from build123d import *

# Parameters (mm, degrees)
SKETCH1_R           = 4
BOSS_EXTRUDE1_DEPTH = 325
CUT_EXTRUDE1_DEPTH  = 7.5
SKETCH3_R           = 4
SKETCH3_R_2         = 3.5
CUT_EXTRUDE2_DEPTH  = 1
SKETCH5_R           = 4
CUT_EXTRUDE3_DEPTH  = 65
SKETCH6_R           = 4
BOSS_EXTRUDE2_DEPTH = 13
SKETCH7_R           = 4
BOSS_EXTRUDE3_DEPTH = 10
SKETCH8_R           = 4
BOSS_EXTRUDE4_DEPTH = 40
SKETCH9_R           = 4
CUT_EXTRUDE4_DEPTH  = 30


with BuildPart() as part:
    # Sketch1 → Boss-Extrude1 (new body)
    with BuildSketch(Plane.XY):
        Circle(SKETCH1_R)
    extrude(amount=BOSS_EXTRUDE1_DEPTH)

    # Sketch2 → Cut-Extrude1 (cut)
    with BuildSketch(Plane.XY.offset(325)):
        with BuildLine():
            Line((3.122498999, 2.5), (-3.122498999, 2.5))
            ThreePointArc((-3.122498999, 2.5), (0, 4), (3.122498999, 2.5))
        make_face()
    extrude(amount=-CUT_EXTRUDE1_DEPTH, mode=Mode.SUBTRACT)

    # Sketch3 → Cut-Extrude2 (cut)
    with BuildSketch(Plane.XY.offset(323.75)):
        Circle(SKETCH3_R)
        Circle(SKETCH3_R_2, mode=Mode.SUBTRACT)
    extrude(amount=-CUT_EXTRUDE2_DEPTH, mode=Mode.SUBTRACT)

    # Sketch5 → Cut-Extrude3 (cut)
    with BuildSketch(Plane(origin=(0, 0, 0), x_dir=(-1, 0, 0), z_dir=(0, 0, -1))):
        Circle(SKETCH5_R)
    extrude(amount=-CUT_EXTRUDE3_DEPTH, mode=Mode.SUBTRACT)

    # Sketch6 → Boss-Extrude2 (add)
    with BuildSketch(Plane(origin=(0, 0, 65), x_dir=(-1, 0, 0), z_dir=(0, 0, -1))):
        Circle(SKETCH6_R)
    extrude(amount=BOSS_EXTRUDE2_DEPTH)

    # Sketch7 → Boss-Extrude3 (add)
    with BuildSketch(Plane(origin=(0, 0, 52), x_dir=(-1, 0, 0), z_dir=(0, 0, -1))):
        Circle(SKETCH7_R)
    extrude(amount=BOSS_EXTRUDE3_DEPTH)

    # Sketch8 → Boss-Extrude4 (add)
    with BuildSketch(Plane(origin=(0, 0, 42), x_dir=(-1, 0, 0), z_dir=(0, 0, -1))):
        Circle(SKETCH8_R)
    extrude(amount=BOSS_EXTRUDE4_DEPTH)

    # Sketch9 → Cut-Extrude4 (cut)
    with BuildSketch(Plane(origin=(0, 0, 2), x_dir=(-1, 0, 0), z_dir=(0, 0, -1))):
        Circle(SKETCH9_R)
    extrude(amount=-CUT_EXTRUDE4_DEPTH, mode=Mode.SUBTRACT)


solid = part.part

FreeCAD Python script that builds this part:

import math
import FreeCAD as App
import Part
import Sketcher
from FreeCAD import Vector

doc = App.newDocument("Part")
body = doc.addObject("PartDesign::Body", "Body")

# Sketch on XY plane
sketch1 = body.newObject("Sketcher::SketchObject", "Sketch")
sketch1.AttachmentSupport = (doc.getObject("XY_Plane"), [""])
sketch1.MapMode = "FlatFace"
sketch1.addGeometry(Part.Circle(Vector(0, 0, 0), Vector(0, 0, 1), 4), False)
sketch1.addConstraint(Sketcher.Constraint("Coincident", 0, 3, -1, 1))
sketch1.addConstraint(Sketcher.Constraint("Diameter", 0, 8.0))
pad1 = body.newObject("PartDesign::Pad", "Pad")
pad1.Profile = sketch1
pad1.Length = 325

# Sketch on XY plane
sketch2 = body.newObject("Sketcher::SketchObject", "Sketch001")
sketch2.AttachmentSupport = (doc.getObject("XY_Plane"), [""])
sketch2.MapMode = "FlatFace"
sketch2.AttachmentOffset = App.Placement(Vector(0, 0, 325), App.Rotation())
sketch2.addGeometry(Part.LineSegment(Vector(-3.1, 2.5, 0), Vector(3.1, 2.5, 0)), False)
sketch2.addGeometry(Part.ArcOfCircle(Part.Circle(Vector(0, 0, 0), Vector(0, 0, 1), 4), math.radians(39), math.radians(141)), False)
sketch2.addConstraint(Sketcher.Constraint("Coincident", 0, 1, 1, 2))
sketch2.addConstraint(Sketcher.Constraint("Coincident", 1, 1, 0, 2))
sketch2.addConstraint(Sketcher.Constraint("Horizontal", 0))
sketch2.addConstraint(Sketcher.Constraint("Coincident", 1, 3, -1, 1))
sketch2.addConstraint(Sketcher.Constraint("Radius", 1, 4.0))
sketch2.addConstraint(Sketcher.Constraint("DistanceY", -1, 1, 0, 1, 2.5))
pocket1 = body.newObject("PartDesign::Pocket", "Pocket")
pocket1.Profile = sketch2
pocket1.Length = 7.5

# Sketch on XY plane
sketch3 = body.newObject("Sketcher::SketchObject", "Sketch002")
sketch3.AttachmentSupport = (doc.getObject("XY_Plane"), [""])
sketch3.MapMode = "FlatFace"
sketch3.AttachmentOffset = App.Placement(Vector(0, 0, 323.75), App.Rotation())
sketch3.addGeometry(Part.Circle(Vector(0, 0, 0), Vector(0, 0, 1), 4), False)
sketch3.addGeometry(Part.Circle(Vector(0, 0, 0), Vector(0, 0, 1), 3.5), False)
sketch3.addConstraint(Sketcher.Constraint("Coincident", 0, 3, -1, 1))
sketch3.addConstraint(Sketcher.Constraint("Coincident", 1, 3, -1, 1))
sketch3.addConstraint(Sketcher.Constraint("Diameter", 0, 8.0))
sketch3.addConstraint(Sketcher.Constraint("Diameter", 1, 7.0))
pocket2 = body.newObject("PartDesign::Pocket", "Pocket001")
pocket2.Profile = sketch3
pocket2.Length = 1

# Sketch on XY plane
sketch4 = body.newObject("Sketcher::SketchObject", "Sketch003")
sketch4.AttachmentSupport = (doc.getObject("XY_Plane"), [""])
sketch4.MapMode = "FlatFace"
sketch4.addGeometry(Part.Circle(Vector(0, 0, 0), Vector(0, 0, 1), 4), False)
sketch4.addConstraint(Sketcher.Constraint("Coincident", 0, 3, -1, 1))
sketch4.addConstraint(Sketcher.Constraint("Diameter", 0, 8.0))
pocket3 = body.newObject("PartDesign::Pocket", "Pocket002")
pocket3.Profile = sketch4
pocket3.Length = 65
pocket3.Reversed = True

# Sketch on XY plane
sketch5 = body.newObject("Sketcher::SketchObject", "Sketch004")
sketch5.AttachmentSupport = (doc.getObject("XY_Plane"), [""])
sketch5.MapMode = "FlatFace"
sketch5.AttachmentOffset = App.Placement(Vector(0, 0, 65), App.Rotation())
sketch5.addGeometry(Part.Circle(Vector(0, 0, 0), Vector(0, 0, 1), 4), False)
sketch5.addConstraint(Sketcher.Constraint("Coincident", 0, 3, -1, 1))
sketch5.addConstraint(Sketcher.Constraint("Diameter", 0, 8.0))
pad2 = body.newObject("PartDesign::Pad", "Pad001")
pad2.Profile = sketch5
pad2.Length = 13
pad2.Reversed = True

# Sketch on XY plane
sketch6 = body.newObject("Sketcher::SketchObject", "Sketch005")
sketch6.AttachmentSupport = (doc.getObject("XY_Plane"), [""])
sketch6.MapMode = "FlatFace"
sketch6.AttachmentOffset = App.Placement(Vector(0, 0, 52), App.Rotation())
sketch6.addGeometry(Part.Circle(Vector(0, 0, 0), Vector(0, 0, 1), 4), False)
sketch6.addConstraint(Sketcher.Constraint("Coincident", 0, 3, -1, 1))
sketch6.addConstraint(Sketcher.Constraint("Diameter", 0, 8.0))
pad3 = body.newObject("PartDesign::Pad", "Pad002")
pad3.Profile = sketch6
pad3.Length = 10
pad3.Reversed = True

# Sketch on XY plane
sketch7 = body.newObject("Sketcher::SketchObject", "Sketch006")
sketch7.AttachmentSupport = (doc.getObject("XY_Plane"), [""])
sketch7.MapMode = "FlatFace"
sketch7.AttachmentOffset = App.Placement(Vector(0, 0, 42), App.Rotation())
sketch7.addGeometry(Part.Circle(Vector(0, 0, 0), Vector(0, 0, 1), 4), False)
sketch7.addConstraint(Sketcher.Constraint("Coincident", 0, 3, -1, 1))
sketch7.addConstraint(Sketcher.Constraint("Diameter", 0, 8.0))
pad4 = body.newObject("PartDesign::Pad", "Pad003")
pad4.Profile = sketch7
pad4.Length = 40
pad4.Reversed = True

# Sketch on XY plane
sketch8 = body.newObject("Sketcher::SketchObject", "Sketch007")
sketch8.AttachmentSupport = (doc.getObject("XY_Plane"), [""])
sketch8.MapMode = "FlatFace"
sketch8.AttachmentOffset = App.Placement(Vector(0, 0, 2), App.Rotation())
sketch8.addGeometry(Part.Circle(Vector(0, 0, 0), Vector(0, 0, 1), 4), False)
sketch8.addConstraint(Sketcher.Constraint("Coincident", 0, 3, -1, 1))
sketch8.addConstraint(Sketcher.Constraint("Diameter", 0, 8.0))
pocket4 = body.newObject("PartDesign::Pocket", "Pocket003")
pocket4.Profile = sketch8
pocket4.Length = 30
pocket4.Reversed = True

doc.recompute()
